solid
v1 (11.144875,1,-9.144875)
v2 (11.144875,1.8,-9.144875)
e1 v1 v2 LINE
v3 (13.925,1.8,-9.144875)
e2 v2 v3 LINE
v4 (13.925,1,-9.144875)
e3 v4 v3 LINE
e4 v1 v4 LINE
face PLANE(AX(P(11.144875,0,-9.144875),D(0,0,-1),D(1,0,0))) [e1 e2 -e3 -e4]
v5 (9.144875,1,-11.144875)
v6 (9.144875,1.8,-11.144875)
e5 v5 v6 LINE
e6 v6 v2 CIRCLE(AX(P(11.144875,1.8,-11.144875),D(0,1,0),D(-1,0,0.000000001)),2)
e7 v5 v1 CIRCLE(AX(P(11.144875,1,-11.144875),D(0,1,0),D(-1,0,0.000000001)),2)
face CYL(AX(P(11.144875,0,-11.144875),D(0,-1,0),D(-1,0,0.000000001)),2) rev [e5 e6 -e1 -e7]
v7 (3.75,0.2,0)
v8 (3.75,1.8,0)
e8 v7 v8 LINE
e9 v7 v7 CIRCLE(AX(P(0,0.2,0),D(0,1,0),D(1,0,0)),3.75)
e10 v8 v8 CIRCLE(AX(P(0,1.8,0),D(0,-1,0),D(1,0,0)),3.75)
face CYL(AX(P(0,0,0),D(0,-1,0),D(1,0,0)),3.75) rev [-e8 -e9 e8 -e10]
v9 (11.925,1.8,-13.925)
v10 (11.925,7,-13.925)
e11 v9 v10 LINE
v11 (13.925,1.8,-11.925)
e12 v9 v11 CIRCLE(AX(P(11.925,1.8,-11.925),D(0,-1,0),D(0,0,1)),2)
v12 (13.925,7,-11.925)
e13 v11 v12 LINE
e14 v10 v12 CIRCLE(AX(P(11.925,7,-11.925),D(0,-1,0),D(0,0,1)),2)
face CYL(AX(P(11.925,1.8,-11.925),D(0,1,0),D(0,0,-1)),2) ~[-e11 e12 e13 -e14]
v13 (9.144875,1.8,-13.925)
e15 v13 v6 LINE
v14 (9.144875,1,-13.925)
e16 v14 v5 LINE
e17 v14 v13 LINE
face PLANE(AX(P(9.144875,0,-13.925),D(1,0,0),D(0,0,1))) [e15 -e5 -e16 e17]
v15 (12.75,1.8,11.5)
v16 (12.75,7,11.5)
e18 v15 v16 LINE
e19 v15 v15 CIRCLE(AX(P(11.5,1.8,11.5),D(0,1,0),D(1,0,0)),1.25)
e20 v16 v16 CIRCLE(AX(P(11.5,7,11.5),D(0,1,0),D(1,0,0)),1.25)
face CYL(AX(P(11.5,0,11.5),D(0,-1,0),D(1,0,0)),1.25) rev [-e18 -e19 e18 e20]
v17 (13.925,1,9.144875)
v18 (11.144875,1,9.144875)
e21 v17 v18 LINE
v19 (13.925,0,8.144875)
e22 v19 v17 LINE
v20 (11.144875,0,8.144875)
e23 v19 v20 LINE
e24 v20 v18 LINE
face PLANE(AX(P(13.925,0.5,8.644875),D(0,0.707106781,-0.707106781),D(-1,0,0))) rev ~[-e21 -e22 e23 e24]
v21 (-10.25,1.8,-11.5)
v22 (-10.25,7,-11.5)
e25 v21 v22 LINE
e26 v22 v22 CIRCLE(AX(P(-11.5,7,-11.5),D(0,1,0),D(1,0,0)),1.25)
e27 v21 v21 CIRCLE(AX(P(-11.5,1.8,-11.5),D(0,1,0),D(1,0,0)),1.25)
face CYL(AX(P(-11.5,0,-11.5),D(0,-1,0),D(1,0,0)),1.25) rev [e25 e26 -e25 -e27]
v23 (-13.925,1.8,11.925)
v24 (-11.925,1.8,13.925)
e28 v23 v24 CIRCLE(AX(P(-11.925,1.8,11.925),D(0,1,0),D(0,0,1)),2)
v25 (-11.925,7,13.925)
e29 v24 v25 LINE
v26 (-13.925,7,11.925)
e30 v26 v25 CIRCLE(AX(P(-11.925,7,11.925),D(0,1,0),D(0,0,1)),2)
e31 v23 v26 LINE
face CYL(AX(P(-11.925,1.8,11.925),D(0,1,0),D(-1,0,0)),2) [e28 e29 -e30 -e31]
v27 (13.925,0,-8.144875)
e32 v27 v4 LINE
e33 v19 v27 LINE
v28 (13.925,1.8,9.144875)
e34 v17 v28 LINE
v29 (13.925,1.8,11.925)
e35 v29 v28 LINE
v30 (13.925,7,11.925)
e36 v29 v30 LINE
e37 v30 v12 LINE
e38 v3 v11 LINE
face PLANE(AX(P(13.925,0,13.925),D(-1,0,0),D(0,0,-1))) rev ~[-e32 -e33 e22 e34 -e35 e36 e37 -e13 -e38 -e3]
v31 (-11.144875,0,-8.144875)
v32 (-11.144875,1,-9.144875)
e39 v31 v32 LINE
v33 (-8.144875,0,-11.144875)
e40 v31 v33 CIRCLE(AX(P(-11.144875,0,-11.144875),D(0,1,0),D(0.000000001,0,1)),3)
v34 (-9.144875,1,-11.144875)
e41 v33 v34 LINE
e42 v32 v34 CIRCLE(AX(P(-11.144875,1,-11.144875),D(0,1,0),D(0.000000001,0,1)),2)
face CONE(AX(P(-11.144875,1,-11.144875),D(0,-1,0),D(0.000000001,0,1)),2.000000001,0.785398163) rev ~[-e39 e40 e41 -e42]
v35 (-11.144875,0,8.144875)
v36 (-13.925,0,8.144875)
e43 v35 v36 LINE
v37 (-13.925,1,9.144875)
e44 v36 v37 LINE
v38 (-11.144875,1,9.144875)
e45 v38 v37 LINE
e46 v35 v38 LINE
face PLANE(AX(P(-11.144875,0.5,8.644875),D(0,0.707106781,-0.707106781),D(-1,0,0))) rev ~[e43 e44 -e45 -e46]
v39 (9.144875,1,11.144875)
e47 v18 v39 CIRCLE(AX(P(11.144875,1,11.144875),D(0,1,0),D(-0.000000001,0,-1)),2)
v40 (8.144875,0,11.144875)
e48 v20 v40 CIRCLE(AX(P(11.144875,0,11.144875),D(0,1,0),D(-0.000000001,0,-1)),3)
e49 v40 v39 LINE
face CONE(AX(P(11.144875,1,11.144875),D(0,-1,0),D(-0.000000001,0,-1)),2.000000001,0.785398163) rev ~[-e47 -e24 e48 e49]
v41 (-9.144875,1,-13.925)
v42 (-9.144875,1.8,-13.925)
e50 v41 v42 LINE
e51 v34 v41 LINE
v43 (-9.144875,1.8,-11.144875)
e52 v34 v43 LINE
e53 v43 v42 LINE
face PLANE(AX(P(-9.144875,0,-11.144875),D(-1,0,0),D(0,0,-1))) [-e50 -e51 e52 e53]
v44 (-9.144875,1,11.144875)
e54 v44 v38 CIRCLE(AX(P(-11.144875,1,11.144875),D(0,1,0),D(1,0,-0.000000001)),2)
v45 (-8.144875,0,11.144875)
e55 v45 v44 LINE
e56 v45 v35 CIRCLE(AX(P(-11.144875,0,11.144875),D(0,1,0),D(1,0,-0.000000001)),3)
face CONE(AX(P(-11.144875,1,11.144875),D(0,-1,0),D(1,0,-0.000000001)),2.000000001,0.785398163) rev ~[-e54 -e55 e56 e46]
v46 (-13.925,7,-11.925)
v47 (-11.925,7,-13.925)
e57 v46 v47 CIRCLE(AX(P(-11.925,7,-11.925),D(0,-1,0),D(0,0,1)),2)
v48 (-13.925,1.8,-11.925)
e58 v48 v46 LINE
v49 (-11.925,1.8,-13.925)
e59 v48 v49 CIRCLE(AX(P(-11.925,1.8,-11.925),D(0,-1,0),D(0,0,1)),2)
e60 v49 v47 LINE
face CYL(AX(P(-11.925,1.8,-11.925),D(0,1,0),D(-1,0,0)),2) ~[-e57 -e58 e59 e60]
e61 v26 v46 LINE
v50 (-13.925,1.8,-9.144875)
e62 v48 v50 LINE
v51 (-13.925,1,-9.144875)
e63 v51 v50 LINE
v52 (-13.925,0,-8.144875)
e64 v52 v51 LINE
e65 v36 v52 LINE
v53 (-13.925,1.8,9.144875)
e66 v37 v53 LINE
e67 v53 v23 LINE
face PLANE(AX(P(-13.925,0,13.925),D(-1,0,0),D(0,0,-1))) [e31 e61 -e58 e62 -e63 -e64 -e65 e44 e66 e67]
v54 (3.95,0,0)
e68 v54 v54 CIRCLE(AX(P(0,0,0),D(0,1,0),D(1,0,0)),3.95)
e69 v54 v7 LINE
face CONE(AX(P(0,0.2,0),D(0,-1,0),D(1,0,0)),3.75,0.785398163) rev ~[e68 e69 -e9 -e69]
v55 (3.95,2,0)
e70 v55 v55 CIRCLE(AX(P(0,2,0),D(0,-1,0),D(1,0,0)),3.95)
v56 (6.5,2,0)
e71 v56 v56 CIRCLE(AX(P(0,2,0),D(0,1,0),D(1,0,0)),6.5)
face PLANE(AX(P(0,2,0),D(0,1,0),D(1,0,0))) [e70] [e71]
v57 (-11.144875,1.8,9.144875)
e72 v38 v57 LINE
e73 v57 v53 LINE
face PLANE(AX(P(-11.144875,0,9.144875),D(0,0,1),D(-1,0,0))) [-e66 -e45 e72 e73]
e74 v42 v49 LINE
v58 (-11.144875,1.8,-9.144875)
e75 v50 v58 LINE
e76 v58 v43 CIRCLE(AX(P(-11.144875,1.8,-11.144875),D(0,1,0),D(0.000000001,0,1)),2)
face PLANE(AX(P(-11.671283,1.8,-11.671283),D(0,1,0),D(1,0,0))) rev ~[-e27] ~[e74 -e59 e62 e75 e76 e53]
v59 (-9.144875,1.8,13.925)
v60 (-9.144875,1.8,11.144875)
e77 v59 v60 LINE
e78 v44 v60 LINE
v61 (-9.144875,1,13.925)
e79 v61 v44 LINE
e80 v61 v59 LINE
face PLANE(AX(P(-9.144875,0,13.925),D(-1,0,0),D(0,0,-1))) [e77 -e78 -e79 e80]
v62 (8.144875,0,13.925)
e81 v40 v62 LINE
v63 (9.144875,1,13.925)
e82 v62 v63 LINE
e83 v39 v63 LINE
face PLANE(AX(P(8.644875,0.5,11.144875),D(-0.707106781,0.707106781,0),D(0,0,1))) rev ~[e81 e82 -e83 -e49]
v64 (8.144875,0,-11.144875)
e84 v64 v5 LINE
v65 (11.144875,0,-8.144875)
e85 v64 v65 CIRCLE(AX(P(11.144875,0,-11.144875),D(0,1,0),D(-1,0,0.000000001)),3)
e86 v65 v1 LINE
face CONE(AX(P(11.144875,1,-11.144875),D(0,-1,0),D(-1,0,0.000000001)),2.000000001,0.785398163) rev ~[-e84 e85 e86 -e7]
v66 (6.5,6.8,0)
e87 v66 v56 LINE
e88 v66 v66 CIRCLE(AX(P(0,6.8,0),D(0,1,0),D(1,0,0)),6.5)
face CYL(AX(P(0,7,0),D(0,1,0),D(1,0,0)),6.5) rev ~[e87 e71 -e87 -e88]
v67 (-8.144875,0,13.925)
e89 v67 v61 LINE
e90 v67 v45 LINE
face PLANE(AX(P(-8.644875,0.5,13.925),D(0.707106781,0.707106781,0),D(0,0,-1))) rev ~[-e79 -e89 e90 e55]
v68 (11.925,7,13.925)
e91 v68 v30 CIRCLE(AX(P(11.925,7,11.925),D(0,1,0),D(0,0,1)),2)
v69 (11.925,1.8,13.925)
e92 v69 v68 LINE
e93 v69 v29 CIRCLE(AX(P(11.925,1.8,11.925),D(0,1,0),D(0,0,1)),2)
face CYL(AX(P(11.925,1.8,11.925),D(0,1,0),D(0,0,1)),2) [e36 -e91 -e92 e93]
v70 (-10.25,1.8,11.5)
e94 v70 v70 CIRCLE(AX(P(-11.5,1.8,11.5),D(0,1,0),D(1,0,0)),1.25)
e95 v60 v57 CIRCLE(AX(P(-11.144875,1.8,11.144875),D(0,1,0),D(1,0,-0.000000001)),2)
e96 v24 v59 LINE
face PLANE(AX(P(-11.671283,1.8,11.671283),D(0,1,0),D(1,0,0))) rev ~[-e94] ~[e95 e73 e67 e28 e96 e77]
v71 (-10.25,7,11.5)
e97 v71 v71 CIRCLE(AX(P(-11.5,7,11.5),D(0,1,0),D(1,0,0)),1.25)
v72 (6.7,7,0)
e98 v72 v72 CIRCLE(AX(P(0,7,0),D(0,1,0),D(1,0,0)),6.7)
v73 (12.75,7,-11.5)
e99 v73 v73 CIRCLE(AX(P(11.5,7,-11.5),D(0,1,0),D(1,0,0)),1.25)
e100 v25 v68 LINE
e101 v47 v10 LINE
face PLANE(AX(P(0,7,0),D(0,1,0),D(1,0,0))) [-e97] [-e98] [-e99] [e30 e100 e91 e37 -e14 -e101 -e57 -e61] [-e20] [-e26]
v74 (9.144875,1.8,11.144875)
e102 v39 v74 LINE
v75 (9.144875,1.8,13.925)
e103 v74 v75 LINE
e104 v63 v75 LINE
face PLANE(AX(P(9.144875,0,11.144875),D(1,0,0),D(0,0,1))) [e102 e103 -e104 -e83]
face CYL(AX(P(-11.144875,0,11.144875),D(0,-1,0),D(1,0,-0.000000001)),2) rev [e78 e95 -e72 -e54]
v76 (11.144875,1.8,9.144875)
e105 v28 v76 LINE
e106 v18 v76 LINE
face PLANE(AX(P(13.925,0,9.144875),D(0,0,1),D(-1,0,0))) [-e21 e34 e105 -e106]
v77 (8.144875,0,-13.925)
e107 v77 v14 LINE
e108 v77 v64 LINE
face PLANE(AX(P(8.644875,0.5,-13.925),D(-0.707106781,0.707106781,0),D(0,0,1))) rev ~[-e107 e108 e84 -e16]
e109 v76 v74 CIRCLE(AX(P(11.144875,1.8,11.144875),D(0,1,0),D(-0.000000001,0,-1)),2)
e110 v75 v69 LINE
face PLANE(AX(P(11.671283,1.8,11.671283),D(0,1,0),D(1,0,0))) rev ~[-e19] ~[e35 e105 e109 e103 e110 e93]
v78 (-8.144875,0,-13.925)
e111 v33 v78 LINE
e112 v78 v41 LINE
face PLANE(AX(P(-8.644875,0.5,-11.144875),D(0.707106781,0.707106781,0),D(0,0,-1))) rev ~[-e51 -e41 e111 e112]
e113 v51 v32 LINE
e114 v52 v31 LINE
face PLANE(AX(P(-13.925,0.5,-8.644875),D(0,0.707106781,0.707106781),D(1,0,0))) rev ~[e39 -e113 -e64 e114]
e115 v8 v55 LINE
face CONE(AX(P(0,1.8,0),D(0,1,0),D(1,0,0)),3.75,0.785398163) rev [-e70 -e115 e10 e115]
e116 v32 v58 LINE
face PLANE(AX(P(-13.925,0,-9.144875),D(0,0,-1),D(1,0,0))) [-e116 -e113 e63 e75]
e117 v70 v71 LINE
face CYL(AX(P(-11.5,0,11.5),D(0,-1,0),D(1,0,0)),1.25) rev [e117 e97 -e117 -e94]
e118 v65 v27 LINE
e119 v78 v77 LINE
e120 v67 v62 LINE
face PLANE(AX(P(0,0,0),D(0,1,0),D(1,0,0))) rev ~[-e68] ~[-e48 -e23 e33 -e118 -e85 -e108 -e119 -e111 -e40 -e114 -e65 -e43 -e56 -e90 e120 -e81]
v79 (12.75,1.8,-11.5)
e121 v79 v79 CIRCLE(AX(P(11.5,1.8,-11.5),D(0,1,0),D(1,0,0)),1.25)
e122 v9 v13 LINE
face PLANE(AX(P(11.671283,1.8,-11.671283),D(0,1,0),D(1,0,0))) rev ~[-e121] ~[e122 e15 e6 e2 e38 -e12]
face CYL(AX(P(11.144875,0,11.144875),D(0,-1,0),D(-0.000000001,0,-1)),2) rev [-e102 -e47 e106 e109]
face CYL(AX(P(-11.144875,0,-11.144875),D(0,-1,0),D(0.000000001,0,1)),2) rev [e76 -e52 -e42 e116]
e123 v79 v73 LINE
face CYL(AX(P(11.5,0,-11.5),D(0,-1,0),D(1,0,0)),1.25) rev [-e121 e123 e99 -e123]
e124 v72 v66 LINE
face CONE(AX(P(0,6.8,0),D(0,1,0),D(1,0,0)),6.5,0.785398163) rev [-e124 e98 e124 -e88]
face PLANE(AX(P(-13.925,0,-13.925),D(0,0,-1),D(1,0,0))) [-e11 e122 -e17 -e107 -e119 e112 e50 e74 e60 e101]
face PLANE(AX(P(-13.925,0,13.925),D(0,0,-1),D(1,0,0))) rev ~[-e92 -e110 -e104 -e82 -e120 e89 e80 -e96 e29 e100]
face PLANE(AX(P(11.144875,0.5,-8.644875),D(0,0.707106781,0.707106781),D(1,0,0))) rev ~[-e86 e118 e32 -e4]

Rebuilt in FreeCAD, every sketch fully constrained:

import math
import FreeCAD as App
import Part
import Sketcher
from FreeCAD import Vector
Q = App.Units.Quantity


def edges_at(feature, points):
    """Names of the edges that pass closest to the given points."""
    edges = feature.Shape.Edges
    near = lambda p: min(range(len(edges)), key=lambda i: edges[i].distToShape(Part.Vertex(*p))[0])
    return sorted({f"Edge{near(p) + 1}" for p in points})

doc = App.newDocument("Part")
body = doc.addObject("PartDesign::Body", "Body")

sketch1 = body.newObject("Sketcher::SketchObject", "Sketch")
sketch1.AttachmentSupport = (doc.getObject("XZ_Plane"), [""])
sketch1.MapMode = "FlatFace"
sketch1.addGeometry(Part.LineSegment(Vector(-13.9, -13.9, 0), Vector(-13.9, 13.9, 0)), False)
sketch1.addGeometry(Part.LineSegment(Vector(-13.9, 13.9, 0), Vector(13.9, 13.9, 0)), False)
sketch1.addGeometry(Part.LineSegment(Vector(13.9, 13.9, 0), Vector(13.9, -13.9, 0)), False)
sketch1.addGeometry(Part.LineSegment(Vector(13.9, -13.9, 0), Vector(-13.9, -13.9, 0)), False)
sketch1.addGeometry(Part.Circle(Vector(-11.5, 11.5, 0), Vector(0, 0, 1), 1.2), False)
sketch1.addGeometry(Part.Circle(Vector(11.5, 11.5, 0), Vector(0, 0, 1), 1.2), False)
sketch1.addGeometry(Part.Circle(Vector(-11.5, -11.5, 0), Vector(0, 0, 1), 1.2), False)
sketch1.addGeometry(Part.Circle(Vector(0, 0, 0), Vector(0, 0, 1), 3.8), False)
sketch1.addGeometry(Part.Circle(Vector(11.5, -11.5, 0), Vector(0, 0, 1), 1.2), False)
sketch1.addConstraint(Sketcher.Constraint("Coincident", 0, 2, 1, 1))
sketch1.addConstraint(Sketcher.Constraint("Coincident", 1, 2, 2, 1))
sketch1.addConstraint(Sketcher.Constraint("Coincident", 2, 2, 3, 1))
sketch1.addConstraint(Sketcher.Constraint("Coincident", 3, 2, 0, 1))
sketch1.addConstraint(Sketcher.Constraint("Vertical", 0))
sketch1.addConstraint(Sketcher.Constraint("Horizontal", 1))
sketch1.addConstraint(Sketcher.Constraint("Vertical", 2))
sketch1.addConstraint(Sketcher.Constraint("Horizontal", 3))
sketch1.addConstraint(Sketcher.Constraint("Coincident", 7, 3, -1, 1))
sketch1.addConstraint(Sketcher.Constraint("Equal", 4, 5))
sketch1.addConstraint(Sketcher.Constraint("Equal", 5, 6))
sketch1.addConstraint(Sketcher.Constraint("Equal", 6, 8))
sketch1.addConstraint(Sketcher.Constraint("Symmetric", 5, 3, 6, 3, -1, 1))
sketch1.addConstraint(Sketcher.Constraint("Symmetric", 4, 3, 8, 3, -1, 1))
sketch1.addConstraint(Sketcher.Constraint("Symmetric", 0, 2, 2, 2, -1, 1))
sketch1.addConstraint(Sketcher.Constraint("Symmetric", 4, 3, 5, 3, -2))
sketch1.addConstraint(Sketcher.Constraint("Equal", 3, 0))
sketch1.addConstraint(Sketcher.Constraint("Diameter", 4, Q("2.5 mm")))
sketch1.addConstraint(Sketcher.Constraint("Diameter", 7, Q("7.5 mm")))
sketch1.addConstraint(Sketcher.Constraint("DistanceX", 4, 3, 5, 3, Q("23 mm")))
sketch1.addConstraint(Sketcher.Constraint("DistanceY", 6, 3, 4, 3, Q("23 mm")))
sketch1.addConstraint(Sketcher.Constraint("DistanceX", 1, 1, 1, 2, Q("27.85 mm")))
pad1 = body.newObject("PartDesign::Pad", "Pad")
pad1.Profile = sketch1
pad1.Length = 7
pad1.Reversed = True

sketch2 = body.newObject("Sketcher::SketchObject", "Sketch001")
sketch2.AttachmentSupport = (doc.getObject("XZ_Plane"), [""])
sketch2.MapMode = "FlatFace"
sketch2.addGeometry(Part.LineSegment(Vector(-9.1, -13.9, 0), Vector(-13.9, -13.9, 0)), False)
sketch2.addGeometry(Part.LineSegment(Vector(-13.9, -13.9, 0), Vector(-13.9, -9.1, 0)), False)
sketch2.addGeometry(Part.LineSegment(Vector(-13.9, -9.1, 0), Vector(-11.1, -9.1, 0)), False)
sketch2.addGeometry(Part.ArcOfCircle(Part.Circle(Vector(-11.1, -11.1, 0), Vector(0, 0, 1), 2), math.radians(0), math.radians(90)), False)
sketch2.addGeometry(Part.LineSegment(Vector(-9.1, -11.1, 0), Vector(-9.1, -13.9, 0)), False)
sketch2.addGeometry(Part.Circle(Vector(-11.5, -11.5, 0), Vector(0, 0, 1), 1.2), False)
sketch2.addGeometry(Part.LineSegment(Vector(13.9, -13.9, 0), Vector(9.1, -13.9, 0)), False)
sketch2.addGeometry(Part.LineSegment(Vector(9.1, -13.9, 0), Vector(9.1, -11.1, 0)), False)
sketch2.addGeometry(Part.ArcOfCircle(Part.Circle(Vector(11.1, -11.1, 0), Vector(0, 0, 1), 2), math.radians(90), math.radians(180)), False)
sketch2.addGeometry(Part.LineSegment(Vector(11.1, -9.1, 0), Vector(13.9, -9.1, 0)), False)
sketch2.addGeometry(Part.LineSegment(Vector(13.9, -9.1, 0), Vector(13.9, -13.9, 0)), False)
sketch2.addGeometry(Part.Circle(Vector(11.5, -11.5, 0), Vector(0, 0, 1), 1.2), False)
sketch2.addGeometry(Part.LineSegment(Vector(-11.1, 9.1, 0), Vector(-13.9, 9.1, 0)), False)
sketch2.addGeometry(Part.LineSegment(Vector(-13.9, 9.1, 0), Vector(-13.9, 13.9, 0)), False)
sketch2.addGeometry(Part.LineSegment(Vector(-13.9, 13.9, 0), Vector(-9.1, 13.9, 0)), False)
sketch2.addGeometry(Part.LineSegment(Vector(-9.1, 13.9, 0), Vector(-9.1, 11.1, 0)), False)
sketch2.addGeometry(Part.ArcOfCircle(Part.Circle(Vector(-11.1, 11.1, 0), Vector(0, 0, 1), 2), math.radians(-90), math.radians(0)), False)
sketch2.addGeometry(Part.Circle(Vector(-11.5, 11.5, 0), Vector(0, 0, 1), 1.2), False)
sketch2.addGeometry(Part.LineSegment(Vector(13.9, 13.9, 0), Vector(13.9, 9.1, 0)), False)
sketch2.addGeometry(Part.LineSegment(Vector(13.9, 9.1, 0), Vector(11.1, 9.1, 0)), False)
sketch2.addGeometry(Part.ArcOfCircle(Part.Circle(Vector(11.1, 11.1, 0), Vector(0, 0, 1), 2), math.radians(-180), math.radians(-90)), False)
sketch2.addGeometry(Part.LineSegment(Vector(9.1, 11.1, 0), Vector(9.1, 13.9, 0)), False)
sketch2.addGeometry(Part.LineSegment(Vector(9.1, 13.9, 0), Vector(13.9, 13.9, 0)), False)
sketch2.addGeometry(Part.Circle(Vector(11.5, 11.5, 0), Vector(0, 0, 1), 1.2), False)
sketch2.addConstraint(Sketcher.Constraint("Coincident", 0, 2, 1, 1))
sketch2.addConstraint(Sketcher.Constraint("Coincident", 1, 2, 2, 1))
sketch2.addConstraint(Sketcher.Constraint("Tangent", 2, 2, 3, 2))
sketch2.addConstraint(Sketcher.Constraint("Tangent", 3, 1, 4, 1))
sketch2.addConstraint(Sketcher.Constraint("Coincident", 4, 2, 0, 1))
sketch2.addConstraint(Sketcher.Constraint("Coincident", 6, 2, 7, 1))
sketch2.addConstraint(Sketcher.Constraint("Tangent", 7, 2, 8, 2))
sketch2.addConstraint(Sketcher.Constraint("Tangent", 8, 1, 9, 1))
sketch2.addConstraint(Sketcher.Constraint("Coincident", 9, 2, 10, 1))
sketch2.addConstraint(Sketcher.Constraint("Coincident", 10, 2, 6, 1))
sketch2.addConstraint(Sketcher.Constraint("Coincident", 12, 2, 13, 1))
sketch2.addConstraint(Sketcher.Constraint("Coincident", 13, 2, 14, 1))
sketch2.addConstraint(Sketcher.Constraint("Coincident", 14, 2, 15, 1))
sketch2.addConstraint(Sketcher.Constraint("Tangent", 15, 2, 16, 2))
sketch2.addConstraint(Sketcher.Constraint("Tangent", 16, 1, 12, 1))
sketch2.addConstraint(Sketcher.Constraint("Coincident", 18, 2, 19, 1))
sketch2.addConstraint(Sketcher.Constraint("Tangent", 19, 2, 20, 2))
sketch2.addConstraint(Sketcher.Constraint("Tangent", 20, 1, 21, 1))
sketch2.addConstraint(Sketcher.Constraint("Coincident", 21, 2, 22, 1))
sketch2.addConstraint(Sketcher.Constraint("Coincident", 22, 2, 18, 1))
sketch2.addConstraint(Sketcher.Constraint("Horizontal", 0))
sketch2.addConstraint(Sketcher.Constraint("Vertical", 1))
sketch2.addConstraint(Sketcher.Constraint("Horizontal", 2))
sketch2.addConstraint(Sketcher.Constraint("Vertical", 4))
sketch2.addConstraint(Sketcher.Constraint("Horizontal", 6))
sketch2.addConstraint(Sketcher.Constraint("Vertical", 7))
sketch2.addConstraint(Sketcher.Constraint("Horizontal", 9))
sketch2.addConstraint(Sketcher.Constraint("Vertical", 10))
sketch2.addConstraint(Sketcher.Constraint("Horizontal", 12))
sketch2.addConstraint(Sketcher.Constraint("Vertical", 13))
sketch2.addConstraint(Sketcher.Constraint("Horizontal", 14))
sketch2.addConstraint(Sketcher.Constraint("Vertical", 15))
sketch2.addConstraint(Sketcher.Constraint("Vertical", 18))
sketch2.addConstraint(Sketcher.Constraint("Horizontal", 19))
sketch2.addConstraint(Sketcher.Constraint("Vertical", 21))
sketch2.addConstraint(Sketcher.Constraint("Horizontal", 22))
sketch2.addConstraint(Sketcher.Constraint("Equal", 3, 8))
sketch2.addConstraint(Sketcher.Constraint("Equal", 5, 11))
sketch2.addConstraint(Sketcher.Constraint("Equal", 8, 16))
sketch2.addConstraint(Sketcher.Constraint("Equal", 11, 17))
sketch2.addConstraint(Sketcher.Constraint("Equal", 16, 20))
sketch2.addConstraint(Sketcher.Constraint("Equal", 17, 23))
sketch2.addConstraint(Sketcher.Constraint("Symmetric", 8, 3, 16, 3, -1, 1))
sketch2.addConstraint(Sketcher.Constraint("Symmetric", 11, 3, 17, 3, -1, 1))
sketch2.addConstraint(Sketcher.Constraint("Symmetric", 3, 3, 20, 3, -1, 1))
sketch2.addConstraint(Sketcher.Constraint("Symmetric", 5, 3, 23, 3, -1, 1))
sketch2.addConstraint(Sketcher.Constraint("Symmetric", 10, 2, 13, 2, -1, 1))
sketch2.addConstraint(Sketcher.Constraint("Symmetric", 0, 2, 22, 2, -1, 1))
sketch2.addConstraint(Sketcher.Constraint("Symmetric", 3, 3, 8, 3, -2))
sketch2.addConstraint(Sketcher.Constraint("Symmetric", 5, 3, 11, 3, -2))
sketch2.addConstraint(Sketcher.Constraint("Symmetric", 0, 2, 10, 2, -2))
sketch2.addConstraint(Sketcher.Constraint("Equal", 22, 1))
sketch2.addConstraint(Sketcher.Constraint("Radius", 3, Q("2 mm")))
sketch2.addConstraint(Sketcher.Constraint("Diameter", 5, Q("2.5 mm")))
sketch2.addConstraint(Sketcher.Constraint("DistanceX", 5, 3, 11, 3, Q("23 mm")))
sketch2.addConstraint(Sketcher.Constraint("DistanceY", 5, 3, 17, 3, Q("23 mm")))
sketch2.addConstraint(Sketcher.Constraint("DistanceX", 0, 2, -1, 1, Q("13.925 mm")))
sketch2.addConstraint(Sketcher.Constraint("DistanceY", 0, 2, -1, 1, Q("13.925 mm")))
sketch2.addConstraint(Sketcher.Constraint("DistanceX", 0, 2, 0, 1, Q("4.780125 mm")))
pocket1 = body.newObject("PartDesign::Pocket", "Pocket")
pocket1.Profile = sketch2
pocket1.Length = 1.8
doc.recompute()

chamfer = body.newObject("PartDesign::Chamfer", "Chamfer")
chamfer.Base = (pocket1, edges_at(pocket1, [
    (-9.145, 0, 12.535),
    (-9.731, 0, 9.731),
    (-12.535, 0, 9.145),
    (12.535, 0, 9.145),
    (9.731, 0, 9.731),
    (9.145, 0, 12.535),
    (9.145, 0, -12.535),
    (9.731, 0, -9.731),
    (12.535, 0, -9.145),
    (-12.535, 0, -9.145),
    (-9.731, 0, -9.731),
    (-9.145, 0, -12.535),
]))
chamfer.Size = 1
doc.recompute()

fillet = body.newObject("PartDesign::Fillet", "Fillet")
fillet.Base = (chamfer, edges_at(chamfer, [
    (13.925, 4.4, -13.925),
    (13.925, 4.4, 13.925),
    (-13.925, 4.4, 13.925),
    (-13.925, 4.4, -13.925),
]))
fillet.Radius = 2

sketch3 = body.newObject("Sketcher::SketchObject", "Sketch002")
sketch3.AttachmentSupport = (doc.getObject("XZ_Plane"), [""])
sketch3.MapMode = "FlatFace"
sketch3.AttachmentOffset = App.Placement(Vector(0, 0, -7), App.Rotation())
sketch3.addGeometry(Part.Circle(Vector(0, 0, 0), Vector(0, 0, 1), 6), False)
sketch3.addConstraint(Sketcher.Constraint("Coincident", 0, 3, -1, 1))
sketch3.addConstraint(Sketcher.Constraint("Diameter", 0, Q("13 mm")))
pocket2 = body.newObject("PartDesign::Pocket", "Pocket001")
pocket2.Profile = sketch3
pocket2.Length = 5
pocket2.Reversed = True
doc.recompute()

chamfer2 = body.newObject("PartDesign::Chamfer", "Chamfer001")
chamfer2.Base = (pocket2, edges_at(pocket2, [(-3.75, 0, 0), (-3.75, 2, 0), (-6.5, 7, 0)]))
chamfer2.Size = 0.2

doc.recompute()
